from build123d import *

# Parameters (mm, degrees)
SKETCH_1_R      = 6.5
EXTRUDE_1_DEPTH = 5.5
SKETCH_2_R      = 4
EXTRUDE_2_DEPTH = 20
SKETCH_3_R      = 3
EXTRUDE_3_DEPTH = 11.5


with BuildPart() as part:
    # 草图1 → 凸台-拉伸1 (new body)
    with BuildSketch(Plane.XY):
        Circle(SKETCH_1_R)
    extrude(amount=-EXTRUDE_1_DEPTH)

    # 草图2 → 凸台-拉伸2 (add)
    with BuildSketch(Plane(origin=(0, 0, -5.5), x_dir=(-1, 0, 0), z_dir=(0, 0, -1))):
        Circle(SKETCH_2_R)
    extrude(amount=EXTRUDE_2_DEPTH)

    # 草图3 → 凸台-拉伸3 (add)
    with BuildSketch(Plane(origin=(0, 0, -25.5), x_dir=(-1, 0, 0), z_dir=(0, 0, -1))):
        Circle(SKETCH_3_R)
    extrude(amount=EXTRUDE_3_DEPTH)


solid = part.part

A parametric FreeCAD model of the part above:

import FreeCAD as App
import Part
import Sketcher

V = App.Vector

doc = App.newDocument("Part")
body = doc.addObject("PartDesign::Body", "Body")

# Sketch on XY plane
sketch1 = body.newObject("Sketcher::SketchObject", "Sketch")
sketch1.AttachmentSupport = (doc.getObject("XY_Plane"), [""])
sketch1.MapMode = "FlatFace"
sketch1.addGeometry(Part.Circle(V(0, 0, 0), V(0, 0, 1), 6), False)
sketch1.addConstraint(Sketcher.Constraint("Coincident", 0, 3, -1, 1))
sketch1.addConstraint(Sketcher.Constraint("Diameter", 0, 13.0))
pad1 = body.newObject("PartDesign::Pad", "Pad")
pad1.Profile = sketch1
pad1.Length = 5.5
pad1.Reversed = True

# Sketch on XY plane
sketch2 = body.newObject("Sketcher::SketchObject", "Sketch001")
sketch2.AttachmentSupport = (doc.getObject("XY_Plane"), [""])
sketch2.MapMode = "FlatFace"
sketch2.AttachmentOffset = App.Placement(V(0, 0, -5.5), App.Rotation())
sketch2.addGeometry(Part.Circle(V(0, 0, 0), V(0, 0, 1), 4), False)
sketch2.addConstraint(Sketcher.Constraint("Coincident", 0, 3, -1, 1))
sketch2.addConstraint(Sketcher.Constraint("Diameter", 0, 8.0))
pad2 = body.newObject("PartDesign::Pad", "Pad001")
pad2.Profile = sketch2
pad2.Length = 20
pad2.Reversed = True

# Sketch on XY plane
sketch3 = body.newObject("Sketcher::SketchObject", "Sketch002")
sketch3.AttachmentSupport = (doc.getObject("XY_Plane"), [""])
sketch3.MapMode = "FlatFace"
sketch3.AttachmentOffset = App.Placement(V(0, 0, -25.5), App.Rotation())
sketch3.addGeometry(Part.Circle(V(0, 0, 0), V(0, 0, 1), 3), False)
sketch3.addConstraint(Sketcher.Constraint("Coincident", 0, 3, -1, 1))
sketch3.addConstraint(Sketcher.Constraint("Diameter", 0, 6.0))
pad3 = body.newObject("PartDesign::Pad", "Pad002")
pad3.Profile = sketch3
pad3.Length = 11.5
pad3.Reversed = True

doc.recompute()
